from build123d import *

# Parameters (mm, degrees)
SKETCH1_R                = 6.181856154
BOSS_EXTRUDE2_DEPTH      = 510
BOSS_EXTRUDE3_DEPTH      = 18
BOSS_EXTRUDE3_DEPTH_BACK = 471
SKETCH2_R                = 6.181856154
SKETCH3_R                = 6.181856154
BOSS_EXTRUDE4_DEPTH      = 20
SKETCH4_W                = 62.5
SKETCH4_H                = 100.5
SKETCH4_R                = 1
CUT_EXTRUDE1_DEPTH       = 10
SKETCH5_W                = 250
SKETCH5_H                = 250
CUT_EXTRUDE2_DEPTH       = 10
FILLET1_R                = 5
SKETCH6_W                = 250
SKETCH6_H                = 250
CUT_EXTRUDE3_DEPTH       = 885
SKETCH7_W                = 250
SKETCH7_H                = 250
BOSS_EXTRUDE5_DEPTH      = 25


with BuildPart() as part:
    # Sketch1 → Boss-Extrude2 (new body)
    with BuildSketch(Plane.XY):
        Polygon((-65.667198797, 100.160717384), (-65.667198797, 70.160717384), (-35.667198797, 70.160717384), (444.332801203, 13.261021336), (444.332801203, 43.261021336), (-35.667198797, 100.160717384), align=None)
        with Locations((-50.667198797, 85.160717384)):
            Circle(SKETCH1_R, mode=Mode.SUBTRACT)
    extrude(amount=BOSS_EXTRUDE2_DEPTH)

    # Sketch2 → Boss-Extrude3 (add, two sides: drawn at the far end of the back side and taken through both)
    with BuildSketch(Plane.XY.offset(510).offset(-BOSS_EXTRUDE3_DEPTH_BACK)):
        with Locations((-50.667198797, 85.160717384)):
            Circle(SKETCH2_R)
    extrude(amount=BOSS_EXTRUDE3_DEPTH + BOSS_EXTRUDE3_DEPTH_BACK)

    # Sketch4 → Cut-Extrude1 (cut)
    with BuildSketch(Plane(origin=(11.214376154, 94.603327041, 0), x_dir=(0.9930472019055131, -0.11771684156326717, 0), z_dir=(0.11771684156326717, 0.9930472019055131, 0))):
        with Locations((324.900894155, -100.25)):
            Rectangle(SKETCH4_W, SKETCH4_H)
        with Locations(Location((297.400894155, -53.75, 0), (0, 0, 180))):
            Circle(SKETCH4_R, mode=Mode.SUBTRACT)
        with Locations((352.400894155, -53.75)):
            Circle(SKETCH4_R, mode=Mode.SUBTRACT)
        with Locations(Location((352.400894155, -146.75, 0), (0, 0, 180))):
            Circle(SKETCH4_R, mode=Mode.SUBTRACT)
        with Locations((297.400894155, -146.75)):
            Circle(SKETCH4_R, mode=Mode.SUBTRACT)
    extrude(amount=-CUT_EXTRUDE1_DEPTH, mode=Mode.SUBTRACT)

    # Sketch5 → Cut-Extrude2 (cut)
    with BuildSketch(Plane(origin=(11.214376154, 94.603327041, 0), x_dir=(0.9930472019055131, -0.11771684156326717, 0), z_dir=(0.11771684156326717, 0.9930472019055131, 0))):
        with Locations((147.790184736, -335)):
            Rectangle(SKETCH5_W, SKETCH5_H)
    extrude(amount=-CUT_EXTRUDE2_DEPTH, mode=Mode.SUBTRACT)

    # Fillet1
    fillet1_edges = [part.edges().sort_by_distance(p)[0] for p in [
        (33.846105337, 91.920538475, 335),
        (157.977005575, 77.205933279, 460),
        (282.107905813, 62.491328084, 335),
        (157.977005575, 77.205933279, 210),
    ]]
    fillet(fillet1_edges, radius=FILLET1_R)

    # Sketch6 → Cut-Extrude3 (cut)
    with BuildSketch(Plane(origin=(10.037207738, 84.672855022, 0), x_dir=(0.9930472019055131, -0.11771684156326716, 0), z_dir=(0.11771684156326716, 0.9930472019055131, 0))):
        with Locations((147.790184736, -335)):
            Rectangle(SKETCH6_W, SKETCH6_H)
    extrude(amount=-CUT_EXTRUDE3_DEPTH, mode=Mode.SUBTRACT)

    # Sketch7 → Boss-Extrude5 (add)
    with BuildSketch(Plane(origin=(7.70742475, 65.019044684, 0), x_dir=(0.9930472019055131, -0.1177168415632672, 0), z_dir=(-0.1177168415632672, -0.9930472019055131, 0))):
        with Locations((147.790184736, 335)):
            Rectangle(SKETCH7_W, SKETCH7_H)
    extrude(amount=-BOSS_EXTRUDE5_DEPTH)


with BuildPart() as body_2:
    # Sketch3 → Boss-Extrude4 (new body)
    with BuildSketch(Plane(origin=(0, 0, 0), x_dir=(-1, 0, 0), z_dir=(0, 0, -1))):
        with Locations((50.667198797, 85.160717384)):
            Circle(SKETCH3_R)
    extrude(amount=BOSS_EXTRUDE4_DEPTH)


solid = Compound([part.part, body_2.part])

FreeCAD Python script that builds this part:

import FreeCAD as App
import Part
import Sketcher


def edges_at(feature, points):
    """Names of the edges that pass closest to the given points."""
    edges = feature.Shape.Edges
    near = lambda p: min(range(len(edges)), key=lambda i: edges[i].distToShape(Part.Vertex(*p))[0])
    return sorted({f"Edge{near(p) + 1}" for p in points})


def add_polygon(sketch, points):
    """Adds a closed chain of lines whose ends are joined by coincident constraints."""
    first, n = sketch.GeometryCount, len(points)
    for a, b in zip(points, points[1:] + points[:1]):
        sketch.addGeometry(Part.LineSegment(App.Vector(*a, 0), App.Vector(*b, 0)), False)
    for i in range(n):
        sketch.addConstraint(Sketcher.Constraint("Coincident", first + i, 2, first + (i + 1) % n, 1))

doc = App.newDocument("Part")
body = doc.addObject("PartDesign::Body", "Body")

# Sketch on XY plane
sketch1 = body.newObject("Sketcher::SketchObject", "Sketch")
sketch1.AttachmentSupport = (doc.getObject("XY_Plane"), [""])
sketch1.MapMode = "FlatFace"
add_polygon(sketch1, [(-65.667199, 100.160717), (-65.667199, 70.160717), (-35.667199, 70.160717), (444.332801, 13.261021), (444.332801, 43.261021), (-35.667199, 100.160717)])  # lines 0-5
sketch1.addGeometry(Part.Circle(App.Vector(-50.667199, 85.160717, 0), App.Vector(0, 0, 1), 6.181856), False)  # 6
sketch1.addConstraint([
    Sketcher.Constraint("Vertical", 0),
    Sketcher.Constraint("Horizontal", 1),
    Sketcher.Constraint("Vertical", 3),
    Sketcher.Constraint("Horizontal", 5),
    Sketcher.Constraint("Parallel", 2, 4),
    Sketcher.Constraint("Vertical", 1, 2, 4, 2),
    Sketcher.Constraint("Equal", 5, 0),
    Sketcher.Constraint("DistanceX", 1, 1, 1, 2, 30.0),
    Sketcher.Constraint("DistanceX", 0, 2, 6, 3, 15.0),
    Sketcher.Constraint("DistanceY", 0, 2, 6, 3, 15.0),
    Sketcher.Constraint("DistanceX", 1, 2, 2, 2, 480.0),
    Sketcher.Constraint("Diameter", 6, 12.363712),
    Sketcher.Constraint("DistanceX", 6, 3, -1, 1, 50.667199),
    Sketcher.Constraint("Distance", 2, 483.360709),
    Sketcher.Constraint("DistanceY", -1, 1, 2, 2, 13.261021),
])
pad1 = body.newObject("PartDesign::Pad", "Pad")
pad1.Profile = sketch1
pad1.Length = 510

# Sketch on XY plane
sketch2 = body.newObject("Sketcher::SketchObject", "Sketch001")
sketch2.AttachmentSupport = (doc.getObject("XY_Plane"), [""])
sketch2.MapMode = "FlatFace"
sketch2.AttachmentOffset = App.Placement(App.Vector(0, 0, 510), App.Rotation())
sketch2.addGeometry(Part.Circle(App.Vector(-50.667199, 85.160717, 0), App.Vector(0, 0, 1), 6.181856), False)
sketch2.addConstraint([
    Sketcher.Constraint("Diameter", 0, 12.363712),
    Sketcher.Constraint("DistanceX", 0, 3, -1, 1, 50.667199),
    Sketcher.Constraint("DistanceY", -1, 1, 0, 3, 85.160717),
])
pad2 = body.newObject("PartDesign::Pad", "Pad001")
pad2.Profile = sketch2
pad2.Type = "TwoLengths"
pad2.Length = 18
pad2.Length2 = 471

# Sketch on an angled plane
sketch3 = body.newObject("Sketcher::SketchObject", "Sketch002")
sketch3.Placement = App.Placement(App.Vector(11.214376, 94.603327, 0), App.Rotation(App.Vector(0.993047202, -0.117716842, 0), App.Vector(0, 0, -1), App.Vector(0.117716842, 0.993047202, 0), "ZXY"))
add_polygon(sketch3, [(293.650894, -50), (293.650894, -150.5), (356.150894, -150.5), (356.150894, -50)])  # lines 0-3
sketch3.addGeometry(Part.Circle(App.Vector(297.400894, -146.75, 0), App.Vector(0, 0, 1), 1), False)  # 4
sketch3.addGeometry(Part.Circle(App.Vector(352.400894, -146.75, 0), App.Vector(0, 0, 1), 1), False)  # 5
sketch3.addGeometry(Part.Circle(App.Vector(297.400894, -53.75, 0), App.Vector(0, 0, 1), 1), False)  # 6
sketch3.addGeometry(Part.Circle(App.Vector(352.400894, -53.75, 0), App.Vector(0, 0, 1), 1), False)  # 7
sketch3.addConstraint([
    Sketcher.Constraint("Vertical", 0),
    Sketcher.Constraint("Horizontal", 1),
    Sketcher.Constraint("Vertical", 2),
    Sketcher.Constraint("Horizontal", 3),
    Sketcher.Constraint("Equal", 4, 5),
    Sketcher.Constraint("Equal", 5, 6),
    Sketcher.Constraint("Equal", 6, 7),
    Sketcher.Constraint("Horizontal", 4, 3, 5, 3),
    Sketcher.Constraint("Horizontal", 6, 3, 7, 3),
    Sketcher.Constraint("Vertical", 4, 3, 6, 3),
    Sketcher.Constraint("Vertical", 5, 3, 7, 3),
    Sketcher.Constraint("Diameter", 4, 2.0),
    Sketcher.Constraint("DistanceX", 1, 1, 1, 2, 62.5),
    Sketcher.Constraint("DistanceY", 0, 2, 0, 1, 100.5),
    Sketcher.Constraint("DistanceY", 2, 2, -1, 1, 50.0),
    Sketcher.Constraint("DistanceX", 4, 3, 5, 3, 55.0),
    Sketcher.Constraint("DistanceY", 4, 3, 6, 3, 93.0),
    Sketcher.Constraint("DistanceY", 4, 3, -1, 1, 146.75),
    Sketcher.Constraint("DistanceX", 0, 2, 4, 3, 3.75),
    Sketcher.Constraint("DistanceX", -1, 1, 4, 3, 297.400894),
])
pocket1 = body.newObject("PartDesign::Pocket", "Pocket")
pocket1.Profile = sketch3
pocket1.Length = 10

# Sketch on an angled plane
sketch4 = body.newObject("Sketcher::SketchObject", "Sketch003")
sketch4.Placement = App.Placement(App.Vector(11.214376, 94.603327, 0), App.Rotation(App.Vector(0.993047202, -0.117716842, 0), App.Vector(0, 0, -1), App.Vector(0.117716842, 0.993047202, 0), "ZXY"))
add_polygon(sketch4, [(22.790185, -210), (22.790185, -460), (272.790185, -460), (272.790185, -210)])  # lines 0-3
sketch4.addConstraint([
    Sketcher.Constraint("Vertical", 0),
    Sketcher.Constraint("Horizontal", 1),
    Sketcher.Constraint("Vertical", 2),
    Sketcher.Constraint("Horizontal", 3),
    Sketcher.Constraint("Equal", 3, 0),
    Sketcher.Constraint("DistanceX", 1, 1, 1, 2, 250.0),
    Sketcher.Constraint("DistanceY", 0, 2, -1, 1, 460.0),
    Sketcher.Constraint("DistanceX", -1, 1, 0, 2, 22.790185),
])
pocket2 = body.newObject("PartDesign::Pocket", "Pocket001")
pocket2.Profile = sketch4
pocket2.Length = 10
doc.recompute()

fillet = body.newObject("PartDesign::Fillet", "Fillet")
fillet.Base = (pocket2, edges_at(pocket2, [
    (33.846, 91.921, 335),
    (157.977, 77.206, 460),
    (282.108, 62.491, 335),
    (157.977, 77.206, 210),
]))
fillet.Radius = 5

# Sketch on an angled plane
sketch5 = body.newObject("Sketcher::SketchObject", "Sketch004")
sketch5.Placement = App.Placement(App.Vector(10.037208, 84.672855, 0), App.Rotation(App.Vector(0.993047202, -0.117716842, 0), App.Vector(0, 0, -1), App.Vector(0.117716842, 0.993047202, 0), "ZXY"))
add_polygon(sketch5, [(22.790185, -210), (22.790185, -460), (272.790185, -460), (272.790185, -210)])  # lines 0-3
sketch5.addConstraint([
    Sketcher.Constraint("Vertical", 0),
    Sketcher.Constraint("Horizontal", 1),
    Sketcher.Constraint("Vertical", 2),
    Sketcher.Constraint("Horizontal", 3),
    Sketcher.Constraint("Equal", 3, 0),
    Sketcher.Constraint("DistanceX", 1, 1, 1, 2, 250.0),
    Sketcher.Constraint("DistanceY", 0, 2, -1, 1, 460.0),
    Sketcher.Constraint("DistanceX", -1, 1, 0, 2, 22.790185),
])
pocket3 = body.newObject("PartDesign::Pocket", "Pocket002")
pocket3.Profile = sketch5
pocket3.Length = 885

# Sketch on an angled plane
sketch6 = body.newObject("Sketcher::SketchObject", "Sketch005")
sketch6.Placement = App.Placement(App.Vector(7.707425, 65.019045, 0), App.Rotation(App.Vector(0.993047202, -0.117716842, 0), App.Vector(0, 0, 1), App.Vector(-0.117716842, -0.993047202, 0), "ZXY"))
add_polygon(sketch6, [(22.790185, 460), (22.790185, 210), (272.790185, 210), (272.790185, 460)])  # lines 0-3
sketch6.addConstraint([
    Sketcher.Constraint("Vertical", 0),
    Sketcher.Constraint("Horizontal", 1),
    Sketcher.Constraint("Vertical", 2),
    Sketcher.Constraint("Horizontal", 3),
    Sketcher.Constraint("Equal", 3, 0),
    Sketcher.Constraint("DistanceX", 1, 1, 1, 2, 250.0),
    Sketcher.Constraint("DistanceY", -1, 1, 0, 2, 210.0),
    Sketcher.Constraint("DistanceX", -1, 1, 0, 2, 22.790185),
])
pad3 = body.newObject("PartDesign::Pad", "Pad002")
pad3.Profile = sketch6
pad3.Length = 25
pad3.Reversed = True
body2 = doc.addObject("PartDesign::Body", "Body001")

# Sketch on XY plane
sketch7 = body2.newObject("Sketcher::SketchObject", "Sketch006")
sketch7.AttachmentSupport = (doc.getObject("XY_Plane001"), [""])
sketch7.MapMode = "FlatFace"
sketch7.addGeometry(Part.Circle(App.Vector(-50.667199, 85.160717, 0), App.Vector(0, 0, 1), 6.181856), False)
sketch7.addConstraint([
    Sketcher.Constraint("Diameter", 0, 12.363712),
    Sketcher.Constraint("DistanceX", 0, 3, -1, 1, 50.667199),
    Sketcher.Constraint("DistanceY", -1, 1, 0, 3, 85.160717),
])
pad4 = body2.newObject("PartDesign::Pad", "Pad003")
pad4.Profile = sketch7
pad4.Length = 20
pad4.Reversed = True

doc.recompute()
